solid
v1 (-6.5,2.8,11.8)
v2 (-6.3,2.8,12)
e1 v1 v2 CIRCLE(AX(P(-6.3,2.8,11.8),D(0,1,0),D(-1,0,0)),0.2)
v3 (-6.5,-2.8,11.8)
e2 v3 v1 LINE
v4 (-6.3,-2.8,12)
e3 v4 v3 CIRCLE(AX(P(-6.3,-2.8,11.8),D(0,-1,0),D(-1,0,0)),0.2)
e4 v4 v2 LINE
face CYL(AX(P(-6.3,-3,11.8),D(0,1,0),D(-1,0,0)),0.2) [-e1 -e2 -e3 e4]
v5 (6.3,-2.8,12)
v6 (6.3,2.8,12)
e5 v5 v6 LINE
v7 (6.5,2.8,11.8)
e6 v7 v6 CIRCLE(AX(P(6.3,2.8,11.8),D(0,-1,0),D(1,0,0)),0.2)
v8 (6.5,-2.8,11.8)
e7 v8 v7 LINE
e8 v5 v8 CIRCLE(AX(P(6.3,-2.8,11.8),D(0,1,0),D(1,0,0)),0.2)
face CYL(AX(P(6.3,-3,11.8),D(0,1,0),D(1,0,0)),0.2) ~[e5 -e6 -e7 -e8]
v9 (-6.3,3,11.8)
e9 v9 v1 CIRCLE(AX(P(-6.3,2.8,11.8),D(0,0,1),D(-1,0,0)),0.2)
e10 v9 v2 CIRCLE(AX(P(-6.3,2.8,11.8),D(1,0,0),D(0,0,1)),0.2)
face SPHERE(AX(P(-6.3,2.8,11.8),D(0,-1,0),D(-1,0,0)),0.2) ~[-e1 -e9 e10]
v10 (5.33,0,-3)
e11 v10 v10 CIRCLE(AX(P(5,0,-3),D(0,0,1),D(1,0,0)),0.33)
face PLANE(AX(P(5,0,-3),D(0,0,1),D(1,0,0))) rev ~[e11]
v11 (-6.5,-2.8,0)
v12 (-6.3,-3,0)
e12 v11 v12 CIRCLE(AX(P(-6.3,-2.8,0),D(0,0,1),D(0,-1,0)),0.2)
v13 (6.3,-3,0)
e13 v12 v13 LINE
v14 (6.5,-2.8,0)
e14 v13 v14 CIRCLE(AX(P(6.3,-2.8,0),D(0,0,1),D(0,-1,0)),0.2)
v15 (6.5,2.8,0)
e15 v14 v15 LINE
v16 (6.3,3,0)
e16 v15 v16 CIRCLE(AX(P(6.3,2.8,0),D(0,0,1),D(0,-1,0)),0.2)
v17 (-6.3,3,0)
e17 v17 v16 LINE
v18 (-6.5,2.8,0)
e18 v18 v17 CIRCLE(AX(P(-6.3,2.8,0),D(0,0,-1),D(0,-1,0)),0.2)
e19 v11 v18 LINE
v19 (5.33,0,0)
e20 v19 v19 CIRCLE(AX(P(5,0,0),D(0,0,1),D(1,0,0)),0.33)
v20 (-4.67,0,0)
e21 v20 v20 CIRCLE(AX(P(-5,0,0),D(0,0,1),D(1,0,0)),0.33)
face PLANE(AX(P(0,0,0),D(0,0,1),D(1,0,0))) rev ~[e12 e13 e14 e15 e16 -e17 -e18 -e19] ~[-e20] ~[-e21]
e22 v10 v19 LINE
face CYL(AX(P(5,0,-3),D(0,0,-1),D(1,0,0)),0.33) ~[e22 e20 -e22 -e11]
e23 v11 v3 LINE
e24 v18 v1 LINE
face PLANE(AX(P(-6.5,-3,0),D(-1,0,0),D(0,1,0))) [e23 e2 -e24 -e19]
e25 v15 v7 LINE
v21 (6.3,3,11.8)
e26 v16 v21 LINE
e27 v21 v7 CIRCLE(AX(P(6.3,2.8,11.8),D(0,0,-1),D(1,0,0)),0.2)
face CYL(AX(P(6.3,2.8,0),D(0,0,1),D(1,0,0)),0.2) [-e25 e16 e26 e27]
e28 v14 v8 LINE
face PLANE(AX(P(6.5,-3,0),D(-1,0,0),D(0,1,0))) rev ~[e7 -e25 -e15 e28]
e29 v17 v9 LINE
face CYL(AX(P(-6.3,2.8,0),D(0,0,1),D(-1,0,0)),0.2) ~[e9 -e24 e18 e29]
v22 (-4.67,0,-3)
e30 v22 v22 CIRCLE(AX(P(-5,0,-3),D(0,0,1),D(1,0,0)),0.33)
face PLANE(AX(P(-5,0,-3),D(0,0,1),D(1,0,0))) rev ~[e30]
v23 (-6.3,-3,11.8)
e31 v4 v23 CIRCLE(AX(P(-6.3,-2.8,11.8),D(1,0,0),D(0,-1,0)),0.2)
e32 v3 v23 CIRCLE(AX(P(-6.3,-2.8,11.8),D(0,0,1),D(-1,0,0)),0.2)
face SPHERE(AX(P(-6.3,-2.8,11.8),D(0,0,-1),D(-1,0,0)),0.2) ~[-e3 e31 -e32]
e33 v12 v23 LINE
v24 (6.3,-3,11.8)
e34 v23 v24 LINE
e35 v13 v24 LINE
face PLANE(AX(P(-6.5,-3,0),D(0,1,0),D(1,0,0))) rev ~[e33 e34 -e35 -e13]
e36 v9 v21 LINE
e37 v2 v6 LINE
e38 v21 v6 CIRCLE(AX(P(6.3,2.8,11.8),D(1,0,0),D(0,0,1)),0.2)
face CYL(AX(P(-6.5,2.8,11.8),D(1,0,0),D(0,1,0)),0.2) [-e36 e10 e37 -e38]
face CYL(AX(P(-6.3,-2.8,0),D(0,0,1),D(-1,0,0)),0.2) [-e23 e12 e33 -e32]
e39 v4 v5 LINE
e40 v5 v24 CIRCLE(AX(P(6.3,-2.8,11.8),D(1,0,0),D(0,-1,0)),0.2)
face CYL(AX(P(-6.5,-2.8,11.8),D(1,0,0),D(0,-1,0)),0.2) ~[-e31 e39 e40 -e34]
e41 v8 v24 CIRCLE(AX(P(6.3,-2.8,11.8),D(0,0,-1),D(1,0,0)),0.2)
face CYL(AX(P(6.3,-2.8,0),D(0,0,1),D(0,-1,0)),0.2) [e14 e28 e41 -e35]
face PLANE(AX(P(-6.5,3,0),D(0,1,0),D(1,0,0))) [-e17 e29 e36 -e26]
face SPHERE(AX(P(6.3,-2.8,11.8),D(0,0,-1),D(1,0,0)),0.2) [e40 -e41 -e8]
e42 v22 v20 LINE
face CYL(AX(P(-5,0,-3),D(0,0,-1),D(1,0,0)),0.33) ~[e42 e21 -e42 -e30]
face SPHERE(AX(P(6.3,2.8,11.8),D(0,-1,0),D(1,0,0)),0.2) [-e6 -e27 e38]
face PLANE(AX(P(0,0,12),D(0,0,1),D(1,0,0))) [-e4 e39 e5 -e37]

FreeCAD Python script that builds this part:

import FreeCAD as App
import Part
import Sketcher


def edges_at(feature, points):
    """Names of the edges that pass closest to the given points."""
    edges = feature.Shape.Edges
    near = lambda p: min(range(len(edges)), key=lambda i: edges[i].distToShape(Part.Vertex(*p))[0])
    return sorted({f"Edge{near(p) + 1}" for p in points})

doc = App.newDocument("Part")
params = doc.addObject("Spreadsheet::Sheet", "Params")
for row, (alias, value) in enumerate([
    ("sketch1_diameter", "0.66 mm"),
    ("pad1_length", "3 mm"),
    ("sketch2_diameter", "0.66 mm"),
    ("pad2_length", "3 mm"),
    ("sketch3_width", "13 mm"),
    ("sketch3_height", "6 mm"),
    ("pad3_length", "12 mm"),
    ("fillet_radius", "0.2 mm"),
], start=1):
    params.set(f"A{row}", alias)
    params.set(f"B{row}", "=" + value)
    params.setAlias(f"B{row}", alias)

body = doc.addObject("PartDesign::Body", "Body")

sketch1 = body.newObject("Sketcher::SketchObject", "Sketch")
sketch1.AttachmentSupport = (doc.getObject("XY_Plane"), [""])
sketch1.MapMode = "FlatFace"
sketch1.AttachmentOffset = App.Placement(App.Vector(0, 0, -3), App.Rotation())
sketch1.addGeometry(Part.Circle(App.Vector(5, 0, 0), App.Vector(0, 0, 1), 0.33), False)
sketch1.addConstraint([
    Sketcher.Constraint("PointOnObject", 0, 3, -1),
    Sketcher.Constraint("Diameter", 0, 0.66),
    Sketcher.Constraint("DistanceX", -1, 1, 0, 3, 5.0),
])
sketch1.setExpression("Constraints[1]", "Params.sketch1_diameter")
pad1 = body.newObject("PartDesign::Pad", "Pad")
pad1.Profile = sketch1
pad1.setExpression("Length", "Params.pad1_length")
body2 = doc.addObject("PartDesign::Body", "Body001")

sketch2 = body2.newObject("Sketcher::SketchObject", "Sketch001")
sketch2.AttachmentSupport = (doc.getObject("XY_Plane001"), [""])
sketch2.MapMode = "FlatFace"
sketch2.AttachmentOffset = App.Placement(App.Vector(0, 0, -3), App.Rotation())
sketch2.addGeometry(Part.Circle(App.Vector(-5, 0, 0), App.Vector(0, 0, 1), 0.33), False)
sketch2.addConstraint([
    Sketcher.Constraint("PointOnObject", 0, 3, -1),
    Sketcher.Constraint("Diameter", 0, 0.66),
    Sketcher.Constraint("DistanceX", 0, 3, -1, 1, 5.0),
])
sketch2.setExpression("Constraints[1]", "Params.sketch2_diameter")
pad2 = body2.newObject("PartDesign::Pad", "Pad001")
pad2.Profile = sketch2
pad2.setExpression("Length", "Params.pad2_length")
body3 = doc.addObject("PartDesign::Body", "Body002")

sketch3 = body3.newObject("Sketcher::SketchObject", "Sketch002")
sketch3.AttachmentSupport = (doc.getObject("XY_Plane002"), [""])
sketch3.MapMode = "FlatFace"
sketch3.addGeometry([
    Part.LineSegment(App.Vector(-6, 3, 0), App.Vector(-6, -3, 0)),
    Part.LineSegment(App.Vector(-6, -3, 0), App.Vector(6, -3, 0)),
    Part.LineSegment(App.Vector(6, -3, 0), App.Vector(6, 3, 0)),
    Part.LineSegment(App.Vector(6, 3, 0), App.Vector(-6, 3, 0)),
], False)
sketch3.addConstraint([
    Sketcher.Constraint("Coincident", 0, 2, 1, 1),
    Sketcher.Constraint("Coincident", 1, 2, 2, 1),
    Sketcher.Constraint("Coincident", 2, 2, 3, 1),
    Sketcher.Constraint("Coincident", 3, 2, 0, 1),
    Sketcher.Constraint("Vertical", 0),
    Sketcher.Constraint("Horizontal", 1),
    Sketcher.Constraint("Vertical", 2),
    Sketcher.Constraint("Horizontal", 3),
    Sketcher.Constraint("Symmetric", 0, 2, 2, 2, -1, 1),
    Sketcher.Constraint("DistanceX", 1, 1, 1, 2, 13.0),
    Sketcher.Constraint("DistanceY", 0, 2, 0, 1, 6.0),
])
sketch3.setExpression("Constraints[9]", "Params.sketch3_width")
sketch3.setExpression("Constraints[10]", "Params.sketch3_height")
pad3 = body3.newObject("PartDesign::Pad", "Pad002")
pad3.Profile = sketch3
pad3.setExpression("Length", "Params.pad3_length")
doc.recompute()

fillet = body3.newObject("PartDesign::Fillet", "Fillet")
fillet.Base = (pad3, edges_at(pad3, [
    (-6.5, -3, 6),
    (-6.5, 0, 12),
    (-6.5, 3, 6),
    (6.5, -3, 6),
    (6.5, 0, 12),
    (6.5, 3, 6),
    (0, -3, 12),
    (0, 3, 12),
]))
fillet.setExpression("Radius", "Params.fillet_radius")
doc.recompute()

boolean = body3.newObject("PartDesign::Boolean", "Boolean")
boolean.Type = "Fuse"
boolean.addObjects([body2])
doc.recompute()

boolean2 = body3.newObject("PartDesign::Boolean", "Boolean001")
boolean2.Type = "Fuse"
boolean2.addObjects([body])

doc.recompute()
